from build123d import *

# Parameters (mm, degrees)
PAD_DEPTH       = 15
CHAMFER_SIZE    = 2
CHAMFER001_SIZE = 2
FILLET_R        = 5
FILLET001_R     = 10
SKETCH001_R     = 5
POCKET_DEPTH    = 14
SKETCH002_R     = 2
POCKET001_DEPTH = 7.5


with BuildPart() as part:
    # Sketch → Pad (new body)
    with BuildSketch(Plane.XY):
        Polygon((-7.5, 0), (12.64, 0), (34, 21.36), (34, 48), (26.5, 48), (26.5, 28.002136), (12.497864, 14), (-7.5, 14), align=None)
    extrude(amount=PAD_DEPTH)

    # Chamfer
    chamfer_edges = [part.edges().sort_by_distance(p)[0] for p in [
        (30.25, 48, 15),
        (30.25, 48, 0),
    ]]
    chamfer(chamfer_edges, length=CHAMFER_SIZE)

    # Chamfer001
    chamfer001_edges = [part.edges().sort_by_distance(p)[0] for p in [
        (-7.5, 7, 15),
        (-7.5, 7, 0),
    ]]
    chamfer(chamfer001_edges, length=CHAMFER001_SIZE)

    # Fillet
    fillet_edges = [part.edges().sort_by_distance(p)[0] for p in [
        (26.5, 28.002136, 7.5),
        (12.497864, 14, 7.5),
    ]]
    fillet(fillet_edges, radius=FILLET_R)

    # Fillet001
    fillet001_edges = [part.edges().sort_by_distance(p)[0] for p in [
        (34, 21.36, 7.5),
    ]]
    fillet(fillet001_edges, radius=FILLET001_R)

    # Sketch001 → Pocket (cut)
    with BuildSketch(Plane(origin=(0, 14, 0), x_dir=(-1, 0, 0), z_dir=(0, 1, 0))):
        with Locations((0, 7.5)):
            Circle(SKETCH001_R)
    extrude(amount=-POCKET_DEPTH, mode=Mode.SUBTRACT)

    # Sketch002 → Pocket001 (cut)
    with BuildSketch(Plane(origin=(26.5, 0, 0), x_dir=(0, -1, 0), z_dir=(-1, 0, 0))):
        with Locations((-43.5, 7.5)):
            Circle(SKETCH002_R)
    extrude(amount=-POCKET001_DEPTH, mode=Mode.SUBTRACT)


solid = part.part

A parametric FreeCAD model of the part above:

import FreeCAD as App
import Part
import Sketcher
Q = App.Units.Quantity


def edges_at(feature, points):
    """Names of the edges that pass closest to the given points."""
    edges = feature.Shape.Edges
    near = lambda p: min(range(len(edges)), key=lambda i: edges[i].distToShape(Part.Vertex(*p))[0])
    return sorted({f"Edge{near(p) + 1}" for p in points})

doc = App.newDocument("Part")
body = doc.addObject("PartDesign::Body", "Body")

# Sketch on XY plane
sketch1 = doc.addObject("Sketcher::SketchObject", "Sketch")
body.addObject(sketch1)
sketch1.AttachmentSupport = (doc.XY_Plane, [""])
sketch1.MapMode = "FlatFace"
sketch1.addGeometry([
    Part.LineSegment(App.Vector(-8, 0, 0), App.Vector(13, 0, 0)),  # 0
    Part.LineSegment(App.Vector(13, 0, 0), App.Vector(34, 21, 0)),  # 1
    Part.LineSegment(App.Vector(34, 21, 0), App.Vector(34, 48, 0)),  # 2
    Part.LineSegment(App.Vector(34, 48, 0), App.Vector(26, 48, 0)),  # 3
    Part.LineSegment(App.Vector(26, 48, 0), App.Vector(26, 28, 0)),  # 4
    Part.LineSegment(App.Vector(26, 28, 0), App.Vector(12, 14, 0)),  # 5
    Part.LineSegment(App.Vector(12, 14, 0), App.Vector(-8, 14, 0)),  # 6
    Part.LineSegment(App.Vector(-8, 14, 0), App.Vector(-8, 0, 0)),  # 7
], False)
sketch1.addConstraint([
    Sketcher.Constraint("Coincident", 0, 2, 1, 1),
    Sketcher.Constraint("Coincident", 1, 2, 2, 1),
    Sketcher.Constraint("Coincident", 2, 2, 3, 1),
    Sketcher.Constraint("Coincident", 3, 2, 4, 1),
    Sketcher.Constraint("Coincident", 4, 2, 5, 1),
    Sketcher.Constraint("Coincident", 5, 2, 6, 1),
    Sketcher.Constraint("Coincident", 6, 2, 7, 1),
    Sketcher.Constraint("Coincident", 7, 2, 0, 1),
    Sketcher.Constraint("Horizontal", 0),
    Sketcher.Constraint("Vertical", 2),
    Sketcher.Constraint("Horizontal", 3),
    Sketcher.Constraint("Vertical", 4),
    Sketcher.Constraint("Horizontal", 6),
    Sketcher.Constraint("Vertical", 7),
    Sketcher.Constraint("PointOnObject", 0, 2, -1),
    Sketcher.Constraint("Parallel", 1, 5),
    Sketcher.Constraint("Equal", 6, 4),
    Sketcher.Constraint("DistanceY", 7, 2, 7, 1, 14.0),
    Sketcher.Constraint("Angle", 1, Q("45 deg")),
    Sketcher.Constraint("DistanceX", 3, 2, 3, 1, 7.5),
    Sketcher.Constraint("DistanceX", -1, 1, 1, 2, 34.0),
    Sketcher.Constraint("DistanceY", -1, 1, 2, 2, 48.0),
    Sketcher.Constraint("DistanceX", 0, 1, 0, 2, 20.14),
    Sketcher.Constraint("Distance", 5, 19.802011),
])
pad1 = doc.addObject("PartDesign::Pad", "Pad")
body.addObject(pad1)
pad1.Profile = sketch1
pad1.Length = 15
doc.recompute()

chamfer = doc.addObject("PartDesign::Chamfer", "Chamfer")
body.addObject(chamfer)
chamfer.Base = (pad1, edges_at(pad1, [(30.25, 48, 15), (30.25, 48, 0)]))
chamfer.Size = 2
doc.recompute()

chamfer2 = doc.addObject("PartDesign::Chamfer", "Chamfer001")
body.addObject(chamfer2)
chamfer2.Base = (chamfer, edges_at(chamfer, [(-7.5, 7, 15), (-7.5, 7, 0)]))
chamfer2.Size = 2
doc.recompute()

fillet = doc.addObject("PartDesign::Fillet", "Fillet")
body.addObject(fillet)
fillet.Base = (chamfer2, edges_at(chamfer2, [(26.5, 28.002, 7.5), (12.498, 14, 7.5)]))
fillet.Radius = 5
doc.recompute()

fillet2 = doc.addObject("PartDesign::Fillet", "Fillet001")
body.addObject(fillet2)
fillet2.Base = (fillet, edges_at(fillet, [(34, 21.36, 7.5)]))
fillet2.Radius = 10

# Sketch on XZ plane
sketch2 = doc.addObject("Sketcher::SketchObject", "Sketch001")
body.addObject(sketch2)
sketch2.AttachmentSupport = (doc.XZ_Plane, [""])
sketch2.MapMode = "FlatFace"
sketch2.AttachmentOffset = App.Placement(App.Vector(0, 0, -14), App.Rotation())
sketch2.addGeometry(Part.Circle(App.Vector(0, 8, 0), App.Vector(0, 0, 1), 5), False)
sketch2.addConstraint([
    Sketcher.Constraint("PointOnObject", 0, 3, -2),
    Sketcher.Constraint("Diameter", 0, 10.0),
    Sketcher.Constraint("DistanceY", -1, 1, 0, 3, 7.5),
])
pocket1 = doc.addObject("PartDesign::Pocket", "Pocket")
body.addObject(pocket1)
pocket1.Profile = sketch2
pocket1.Length = 14
pocket1.Reversed = True

# Sketch on YZ plane
sketch3 = doc.addObject("Sketcher::SketchObject", "Sketch002")
body.addObject(sketch3)
sketch3.AttachmentSupport = (doc.YZ_Plane, [""])
sketch3.MapMode = "FlatFace"
sketch3.AttachmentOffset = App.Placement(App.Vector(0, 0, 26.5), App.Rotation())
sketch3.addGeometry(Part.Circle(App.Vector(43.5, 7.5, 0), App.Vector(0, 0, 1), 2), False)
sketch3.addConstraint([
    Sketcher.Constraint("Diameter", 0, 4.0),
    Sketcher.Constraint("DistanceX", -1, 1, 0, 3, 43.5),
    Sketcher.Constraint("DistanceY", -1, 1, 0, 3, 7.5),
])
pocket2 = doc.addObject("PartDesign::Pocket", "Pocket001")
body.addObject(pocket2)
pocket2.Profile = sketch3
pocket2.Length = 7.5
pocket2.Reversed = True

doc.recompute()
